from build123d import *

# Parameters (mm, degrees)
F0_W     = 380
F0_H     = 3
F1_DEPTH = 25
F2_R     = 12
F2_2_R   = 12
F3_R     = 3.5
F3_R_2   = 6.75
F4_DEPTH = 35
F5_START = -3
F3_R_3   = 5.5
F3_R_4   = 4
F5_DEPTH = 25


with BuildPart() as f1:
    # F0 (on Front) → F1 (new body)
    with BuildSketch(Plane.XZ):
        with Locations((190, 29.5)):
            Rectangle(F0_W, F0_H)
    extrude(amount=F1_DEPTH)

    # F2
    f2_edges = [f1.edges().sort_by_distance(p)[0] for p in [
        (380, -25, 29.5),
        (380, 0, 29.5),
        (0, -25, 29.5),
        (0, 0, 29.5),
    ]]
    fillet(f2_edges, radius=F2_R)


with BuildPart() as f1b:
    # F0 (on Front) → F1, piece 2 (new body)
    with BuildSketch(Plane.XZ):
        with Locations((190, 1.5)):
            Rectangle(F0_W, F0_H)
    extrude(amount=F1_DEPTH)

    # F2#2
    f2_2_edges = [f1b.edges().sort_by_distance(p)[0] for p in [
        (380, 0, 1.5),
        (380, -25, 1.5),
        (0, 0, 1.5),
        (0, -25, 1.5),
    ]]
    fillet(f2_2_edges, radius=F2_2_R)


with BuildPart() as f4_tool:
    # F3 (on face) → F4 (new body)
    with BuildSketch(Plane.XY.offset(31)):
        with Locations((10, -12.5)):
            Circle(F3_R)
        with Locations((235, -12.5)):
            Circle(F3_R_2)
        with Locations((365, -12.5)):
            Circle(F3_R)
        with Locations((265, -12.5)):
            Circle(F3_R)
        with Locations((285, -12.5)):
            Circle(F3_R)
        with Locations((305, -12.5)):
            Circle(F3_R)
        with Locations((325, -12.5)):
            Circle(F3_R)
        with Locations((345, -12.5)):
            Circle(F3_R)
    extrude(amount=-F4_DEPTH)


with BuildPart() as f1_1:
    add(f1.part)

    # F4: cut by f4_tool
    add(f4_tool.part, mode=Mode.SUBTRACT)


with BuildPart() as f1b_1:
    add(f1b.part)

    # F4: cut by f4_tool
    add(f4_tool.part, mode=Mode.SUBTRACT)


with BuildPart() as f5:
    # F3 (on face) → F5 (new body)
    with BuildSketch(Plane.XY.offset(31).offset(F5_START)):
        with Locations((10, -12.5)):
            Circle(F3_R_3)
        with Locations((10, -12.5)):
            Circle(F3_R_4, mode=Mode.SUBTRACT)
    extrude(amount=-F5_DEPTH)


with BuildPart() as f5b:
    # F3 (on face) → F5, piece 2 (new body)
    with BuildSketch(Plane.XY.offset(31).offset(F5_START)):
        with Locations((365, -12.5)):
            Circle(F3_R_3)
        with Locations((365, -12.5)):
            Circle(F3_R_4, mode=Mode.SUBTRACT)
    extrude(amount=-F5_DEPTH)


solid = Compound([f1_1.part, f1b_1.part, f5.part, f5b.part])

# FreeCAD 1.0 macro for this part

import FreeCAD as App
import Part
import Sketcher
Q = App.Units.Quantity


def edges_at(feature, points):
    """Names of the edges that pass closest to the given points."""
    edges = feature.Shape.Edges
    near = lambda p: min(range(len(edges)), key=lambda i: edges[i].distToShape(Part.Vertex(*p))[0])
    return sorted({f"Edge{near(p) + 1}" for p in points})


def add_polygon(sketch, points):
    """Adds a closed chain of lines whose ends are joined by coincident constraints."""
    first, n = sketch.GeometryCount, len(points)
    for a, b in zip(points, points[1:] + points[:1]):
        sketch.addGeometry(Part.LineSegment(App.Vector(*a, 0), App.Vector(*b, 0)), False)
    for i in range(n):
        sketch.addConstraint(Sketcher.Constraint("Coincident", first + i, 2, first + (i + 1) % n, 1))

doc = App.newDocument("Part")
body = doc.addObject("PartDesign::Body", "Body")

# Sketch on XZ plane
sketch1 = doc.addObject("Sketcher::SketchObject", "Sketch")
body.addObject(sketch1)
sketch1.AttachmentSupport = (doc.XZ_Plane, [""])
sketch1.MapMode = "FlatFace"
add_polygon(sketch1, [(0, 31), (0, 28), (380, 28), (380, 31)])  # lines 0-3
sketch1.addConstraint(Sketcher.Constraint("Vertical", 0))
sketch1.addConstraint(Sketcher.Constraint("Horizontal", 1))
sketch1.addConstraint(Sketcher.Constraint("Vertical", 2))
sketch1.addConstraint(Sketcher.Constraint("Horizontal", 3))
sketch1.addConstraint(Sketcher.Constraint("PointOnObject", 0, 2, -2))
sketch1.addConstraint(Sketcher.Constraint("DistanceX", 1, 1, 1, 2, Q("380 mm")))
sketch1.addConstraint(Sketcher.Constraint("DistanceY", 0, 2, 0, 1, Q("3 mm")))
sketch1.addConstraint(Sketcher.Constraint("DistanceY", -1, 1, 0, 2, Q("28 mm")))
pad1 = doc.addObject("PartDesign::Pad", "Pad")
body.addObject(pad1)
pad1.Profile = sketch1
pad1.Length = 25
doc.recompute()

fillet = doc.addObject("PartDesign::Fillet", "Fillet")
body.addObject(fillet)
fillet.Base = (pad1, edges_at(pad1, [
    (380, -25, 29.5),
    (380, 0, 29.5),
    (0, -25, 29.5),
    (0, 0, 29.5),
]))
fillet.Radius = 12
body2 = doc.addObject("PartDesign::Body", "Body001")

# Sketch on XZ plane
sketch2 = doc.addObject("Sketcher::SketchObject", "Sketch001")
body2.addObject(sketch2)
sketch2.AttachmentSupport = (doc.getObject("XZ_Plane001"), [""])
sketch2.MapMode = "FlatFace"
add_polygon(sketch2, [(0, 3), (0, 0), (380, 0), (380, 3)])  # lines 0-3
sketch2.addConstraint(Sketcher.Constraint("Vertical", 0))
sketch2.addConstraint(Sketcher.Constraint("Horizontal", 1))
sketch2.addConstraint(Sketcher.Constraint("Vertical", 2))
sketch2.addConstraint(Sketcher.Constraint("Horizontal", 3))
sketch2.addConstraint(Sketcher.Constraint("Coincident", 0, 2, -1, 1))
sketch2.addConstraint(Sketcher.Constraint("DistanceX", 1, 1, 1, 2, Q("380 mm")))
sketch2.addConstraint(Sketcher.Constraint("DistanceY", 0, 2, 0, 1, Q("3 mm")))
pad2 = doc.addObject("PartDesign::Pad", "Pad001")
body2.addObject(pad2)
pad2.Profile = sketch2
pad2.Length = 25
doc.recompute()

fillet2 = doc.addObject("PartDesign::Fillet", "Fillet001")
body2.addObject(fillet2)
fillet2.Base = (pad2, edges_at(pad2, [
    (380, 0, 1.5),
    (380, -25, 1.5),
    (0, 0, 1.5),
    (0, -25, 1.5),
]))
fillet2.Radius = 12
body3 = doc.addObject("PartDesign::Body", "Body002")
body3.AllowCompound = True

# Sketch on XY plane
sketch3 = doc.addObject("Sketcher::SketchObject", "Sketch002")
body3.addObject(sketch3)
sketch3.AttachmentSupport = (doc.getObject("XY_Plane002"), [""])
sketch3.MapMode = "FlatFace"
sketch3.AttachmentOffset = App.Placement(App.Vector(0, 0, 31), App.Rotation())
sketch3.addGeometry(Part.Circle(App.Vector(10, -12.5, 0), App.Vector(0, 0, 1), 3.5), False)
sketch3.addGeometry(Part.Circle(App.Vector(235, -12.5, 0), App.Vector(0, 0, 1), 6.8), False)
sketch3.addGeometry(Part.Circle(App.Vector(365, -12.5, 0), App.Vector(0, 0, 1), 3.5), False)
sketch3.addGeometry(Part.Circle(App.Vector(265, -12.5, 0), App.Vector(0, 0, 1), 3.5), False)
sketch3.addGeometry(Part.Circle(App.Vector(285, -12.5, 0), App.Vector(0, 0, 1), 3.5), False)
sketch3.addGeometry(Part.Circle(App.Vector(305, -12.5, 0), App.Vector(0, 0, 1), 3.5), False)
sketch3.addGeometry(Part.Circle(App.Vector(325, -12.5, 0), App.Vector(0, 0, 1), 3.5), False)
sketch3.addGeometry(Part.Circle(App.Vector(345, -12.5, 0), App.Vector(0, 0, 1), 3.5), False)
sketch3.addConstraint(Sketcher.Constraint("Equal", 0, 2))
sketch3.addConstraint(Sketcher.Constraint("Equal", 2, 3))
sketch3.addConstraint(Sketcher.Constraint("Equal", 3, 4))
sketch3.addConstraint(Sketcher.Constraint("Equal", 4, 5))
sketch3.addConstraint(Sketcher.Constraint("Equal", 5, 6))
sketch3.addConstraint(Sketcher.Constraint("Equal", 6, 7))
sketch3.addConstraint(Sketcher.Constraint("Horizontal", 0, 3, 1, 3))
sketch3.addConstraint(Sketcher.Constraint("Horizontal", 1, 3, 2, 3))
sketch3.addConstraint(Sketcher.Constraint("Horizontal", 2, 3, 3, 3))
sketch3.addConstraint(Sketcher.Constraint("Horizontal", 3, 3, 4, 3))
sketch3.addConstraint(Sketcher.Constraint("Horizontal", 4, 3, 5, 3))
sketch3.addConstraint(Sketcher.Constraint("Horizontal", 5, 3, 6, 3))
sketch3.addConstraint(Sketcher.Constraint("Horizontal", 6, 3, 7, 3))
sketch3.addConstraint(Sketcher.Constraint("Diameter", 0, Q("7 mm")))
sketch3.addConstraint(Sketcher.Constraint("Diameter", 1, Q("13.5 mm")))
sketch3.addConstraint(Sketcher.Constraint("DistanceX", -1, 1, 0, 3, Q("10 mm")))
sketch3.addConstraint(Sketcher.Constraint("DistanceX", -1, 1, 1, 3, Q("235 mm")))
sketch3.addConstraint(Sketcher.Constraint("DistanceX", -1, 1, 2, 3, Q("365 mm")))
sketch3.addConstraint(Sketcher.Constraint("DistanceX", -1, 1, 3, 3, Q("265 mm")))
sketch3.addConstraint(Sketcher.Constraint("DistanceX", -1, 1, 4, 3, Q("285 mm")))
sketch3.addConstraint(Sketcher.Constraint("DistanceX", -1, 1, 5, 3, Q("305 mm")))
sketch3.addConstraint(Sketcher.Constraint("DistanceX", -1, 1, 6, 3, Q("325 mm")))
sketch3.addConstraint(Sketcher.Constraint("DistanceX", -1, 1, 7, 3, Q("345 mm")))
sketch3.addConstraint(Sketcher.Constraint("DistanceY", 0, 3, -1, 1, Q("12.5 mm")))
pad3 = doc.addObject("PartDesign::Pad", "Pad002")
body3.addObject(pad3)
pad3.Profile = sketch3
pad3.Length = 35
pad3.Reversed = True
doc.recompute()

body4 = doc.addObject("PartDesign::Body", "Body003")
body4.BaseFeature = body3
boolean = doc.addObject("PartDesign::Boolean", "Boolean")
body.addObject(boolean)
boolean.Type = "Cut"
boolean.addObjects([body4])
doc.recompute()

boolean2 = doc.addObject("PartDesign::Boolean", "Boolean001")
body2.addObject(boolean2)
boolean2.Type = "Cut"
boolean2.addObjects([body3])
body5 = doc.addObject("PartDesign::Body", "Body004")

# Sketch on XY plane
sketch4 = doc.addObject("Sketcher::SketchObject", "Sketch003")
body5.addObject(sketch4)
sketch4.AttachmentSupport = (doc.getObject("XY_Plane004"), [""])
sketch4.MapMode = "FlatFace"
sketch4.AttachmentOffset = App.Placement(App.Vector(0, 0, 28), App.Rotation())
sketch4.addGeometry(Part.Circle(App.Vector(10, -12.5, 0), App.Vector(0, 0, 1), 5.5), False)
sketch4.addGeometry(Part.Circle(App.Vector(10, -12.5, 0), App.Vector(0, 0, 1), 4), False)
sketch4.addConstraint(Sketcher.Constraint("Coincident", 1, 3, 0, 3))
sketch4.addConstraint(Sketcher.Constraint("Diameter", 0, Q("11 mm")))
sketch4.addConstraint(Sketcher.Constraint("Diameter", 1, Q("8 mm")))
sketch4.addConstraint(Sketcher.Constraint("DistanceX", -1, 1, 0, 3, Q("10 mm")))
sketch4.addConstraint(Sketcher.Constraint("DistanceY", 0, 3, -1, 1, Q("12.5 mm")))
pad4 = doc.addObject("PartDesign::Pad", "Pad003")
body5.addObject(pad4)
pad4.Profile = sketch4
pad4.Length = 25
pad4.Reversed = True
body6 = doc.addObject("PartDesign::Body", "Body005")

# Sketch on XY plane
sketch5 = doc.addObject("Sketcher::SketchObject", "Sketch004")
body6.addObject(sketch5)
sketch5.AttachmentSupport = (doc.getObject("XY_Plane005"), [""])
sketch5.MapMode = "FlatFace"
sketch5.AttachmentOffset = App.Placement(App.Vector(0, 0, 28), App.Rotation())
sketch5.addGeometry(Part.Circle(App.Vector(365, -12.5, 0), App.Vector(0, 0, 1), 5.5), False)
sketch5.addGeometry(Part.Circle(App.Vector(365, -12.5, 0), App.Vector(0, 0, 1), 4), False)
sketch5.addConstraint(Sketcher.Constraint("Coincident", 1, 3, 0, 3))
sketch5.addConstraint(Sketcher.Constraint("Diameter", 0, Q("11 mm")))
sketch5.addConstraint(Sketcher.Constraint("Diameter", 1, Q("8 mm")))
sketch5.addConstraint(Sketcher.Constraint("DistanceX", -1, 1, 0, 3, Q("365 mm")))
sketch5.addConstraint(Sketcher.Constraint("DistanceY", 0, 3, -1, 1, Q("12.5 mm")))
pad5 = doc.addObject("PartDesign::Pad", "Pad004")
body6.addObject(pad5)
pad5.Profile = sketch5
pad5.Length = 25
pad5.Reversed = True

doc.recompute()
